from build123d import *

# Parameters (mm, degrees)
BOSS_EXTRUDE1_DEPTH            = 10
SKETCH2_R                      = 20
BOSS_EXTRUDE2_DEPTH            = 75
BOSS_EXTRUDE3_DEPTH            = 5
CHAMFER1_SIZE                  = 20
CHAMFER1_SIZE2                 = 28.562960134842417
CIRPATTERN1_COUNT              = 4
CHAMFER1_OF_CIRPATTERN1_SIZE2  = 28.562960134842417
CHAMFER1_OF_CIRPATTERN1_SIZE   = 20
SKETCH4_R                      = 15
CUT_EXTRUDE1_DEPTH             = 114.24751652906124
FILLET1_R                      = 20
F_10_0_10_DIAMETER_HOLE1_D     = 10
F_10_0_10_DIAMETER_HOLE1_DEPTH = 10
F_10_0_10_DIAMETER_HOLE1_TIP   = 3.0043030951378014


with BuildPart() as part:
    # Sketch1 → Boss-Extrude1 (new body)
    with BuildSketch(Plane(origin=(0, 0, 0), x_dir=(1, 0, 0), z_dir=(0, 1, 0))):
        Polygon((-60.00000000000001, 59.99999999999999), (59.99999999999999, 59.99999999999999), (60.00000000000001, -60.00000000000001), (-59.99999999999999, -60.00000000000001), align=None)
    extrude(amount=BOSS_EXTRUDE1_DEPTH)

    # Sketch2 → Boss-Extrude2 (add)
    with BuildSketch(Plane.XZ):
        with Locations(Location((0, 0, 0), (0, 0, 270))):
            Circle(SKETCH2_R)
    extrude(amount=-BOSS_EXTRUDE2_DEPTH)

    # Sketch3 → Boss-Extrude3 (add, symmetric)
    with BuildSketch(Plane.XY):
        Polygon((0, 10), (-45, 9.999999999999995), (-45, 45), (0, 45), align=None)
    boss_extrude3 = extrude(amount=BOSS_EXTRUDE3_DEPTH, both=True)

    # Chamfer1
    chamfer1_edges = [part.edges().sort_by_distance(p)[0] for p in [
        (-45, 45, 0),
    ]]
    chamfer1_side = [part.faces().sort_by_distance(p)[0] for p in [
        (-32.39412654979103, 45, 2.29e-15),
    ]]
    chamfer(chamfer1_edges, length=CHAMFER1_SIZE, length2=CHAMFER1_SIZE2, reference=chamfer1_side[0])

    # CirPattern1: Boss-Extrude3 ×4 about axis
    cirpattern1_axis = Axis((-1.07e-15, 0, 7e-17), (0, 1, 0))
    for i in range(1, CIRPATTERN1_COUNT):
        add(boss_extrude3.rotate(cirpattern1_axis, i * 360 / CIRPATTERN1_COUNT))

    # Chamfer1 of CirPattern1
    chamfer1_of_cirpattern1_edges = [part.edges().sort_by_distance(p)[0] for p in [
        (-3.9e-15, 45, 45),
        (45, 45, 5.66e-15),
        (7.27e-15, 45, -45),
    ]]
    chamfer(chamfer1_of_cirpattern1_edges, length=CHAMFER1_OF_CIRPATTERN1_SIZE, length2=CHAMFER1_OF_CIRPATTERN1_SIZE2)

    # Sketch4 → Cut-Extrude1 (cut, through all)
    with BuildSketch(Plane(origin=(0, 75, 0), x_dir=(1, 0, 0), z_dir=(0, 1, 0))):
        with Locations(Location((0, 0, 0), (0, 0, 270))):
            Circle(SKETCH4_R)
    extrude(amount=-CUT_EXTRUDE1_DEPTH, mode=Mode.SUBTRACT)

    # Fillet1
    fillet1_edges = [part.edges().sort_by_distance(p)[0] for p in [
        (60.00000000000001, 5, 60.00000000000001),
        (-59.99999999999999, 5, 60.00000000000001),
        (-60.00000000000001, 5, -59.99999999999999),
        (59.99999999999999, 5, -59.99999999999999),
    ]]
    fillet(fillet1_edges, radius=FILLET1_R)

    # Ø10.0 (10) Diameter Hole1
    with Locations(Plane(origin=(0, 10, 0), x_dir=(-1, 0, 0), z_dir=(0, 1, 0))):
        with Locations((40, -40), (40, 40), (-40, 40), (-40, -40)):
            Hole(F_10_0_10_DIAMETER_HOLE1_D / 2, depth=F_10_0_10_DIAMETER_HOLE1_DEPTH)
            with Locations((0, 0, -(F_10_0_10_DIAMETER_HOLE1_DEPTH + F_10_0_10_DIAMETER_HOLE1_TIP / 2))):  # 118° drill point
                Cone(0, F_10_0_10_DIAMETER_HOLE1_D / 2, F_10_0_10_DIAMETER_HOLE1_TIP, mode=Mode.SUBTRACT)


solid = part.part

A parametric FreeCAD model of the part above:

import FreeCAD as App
import Part
import Sketcher

V = App.Vector


def edges_at(feature, points):
    """Names of the edges that pass closest to the given points."""
    edges = feature.Shape.Edges
    near = lambda p: min(range(len(edges)), key=lambda i: edges[i].distToShape(Part.Vertex(*p))[0])
    return sorted({f"Edge{near(p) + 1}" for p in points})


def add_polygon(sketch, points):
    """Adds a closed chain of lines whose ends are joined by coincident constraints."""
    first, n = sketch.GeometryCount, len(points)
    for a, b in zip(points, points[1:] + points[:1]):
        sketch.addGeometry(Part.LineSegment(App.Vector(*a, 0), App.Vector(*b, 0)), False)
    for i in range(n):
        sketch.addConstraint(Sketcher.Constraint("Coincident", first + i, 2, first + (i + 1) % n, 1))

doc = App.newDocument("Part")
body = doc.addObject("PartDesign::Body", "Body")

# Sketch on XZ plane
sketch1 = doc.addObject("Sketcher::SketchObject", "Sketch")
body.addObject(sketch1)
sketch1.AttachmentSupport = (doc.XZ_Plane, [""])
sketch1.MapMode = "FlatFace"
add_polygon(sketch1, [(60, -60), (-60, -60), (-60, 60), (60, 60)])  # lines 0-3
sketch1.addConstraint(Sketcher.Constraint("Horizontal", 0))
sketch1.addConstraint(Sketcher.Constraint("Vertical", 1))
sketch1.addConstraint(Sketcher.Constraint("Horizontal", 2))
sketch1.addConstraint(Sketcher.Constraint("Vertical", 3))
sketch1.addConstraint(Sketcher.Constraint("Symmetric", 0, 2, 2, 2, -1, 1))
sketch1.addConstraint(Sketcher.Constraint("Equal", 2, 1))
sketch1.addConstraint(Sketcher.Constraint("DistanceX", 0, 2, 0, 1, 120.0))
pad1 = doc.addObject("PartDesign::Pad", "Pad")
body.addObject(pad1)
pad1.Profile = sketch1
pad1.Length = 10
pad1.Reversed = True

# Sketch on XZ plane
sketch2 = doc.addObject("Sketcher::SketchObject", "Sketch001")
body.addObject(sketch2)
sketch2.AttachmentSupport = (doc.XZ_Plane, [""])
sketch2.MapMode = "FlatFace"
sketch2.addGeometry(Part.Circle(V(0, 0, 0), V(0, 0, 1), 20), False)
sketch2.addConstraint(Sketcher.Constraint("Coincident", 0, 3, -1, 1))
sketch2.addConstraint(Sketcher.Constraint("Diameter", 0, 40.0))
pad2 = doc.addObject("PartDesign::Pad", "Pad001")
body.addObject(pad2)
pad2.Profile = sketch2
pad2.Length = 75
pad2.Reversed = True

# Sketch on XY plane
sketch3 = doc.addObject("Sketcher::SketchObject", "Sketch002")
body.addObject(sketch3)
sketch3.AttachmentSupport = (doc.XY_Plane, [""])
sketch3.MapMode = "FlatFace"
add_polygon(sketch3, [(-45, 10), (0, 10), (0, 45), (-45, 45)])  # lines 0-3
sketch3.addConstraint(Sketcher.Constraint("Horizontal", 0))
sketch3.addConstraint(Sketcher.Constraint("Vertical", 1))
sketch3.addConstraint(Sketcher.Constraint("Horizontal", 2))
sketch3.addConstraint(Sketcher.Constraint("Vertical", 3))
sketch3.addConstraint(Sketcher.Constraint("PointOnObject", 0, 2, -2))
sketch3.addConstraint(Sketcher.Constraint("DistanceX", 0, 1, 0, 2, 45.0))
sketch3.addConstraint(Sketcher.Constraint("DistanceY", 1, 1, 1, 2, 35.0))
sketch3.addConstraint(Sketcher.Constraint("DistanceY", -1, 1, 0, 2, 10.0))
pad3 = doc.addObject("PartDesign::Pad", "Pad002")
body.addObject(pad3)
pad3.Profile = sketch3
pad3.Length = 10
pad3.Midplane = True
doc.recompute()

chamfer = doc.addObject("PartDesign::Chamfer", "Chamfer")
body.addObject(chamfer)
chamfer.Base = (pad3, edges_at(pad3, [(-45, 45, 0)]))
chamfer.ChamferType = "Two distances"
chamfer.Size = 20
chamfer.Size2 = 28.56296
chamfer.FlipDirection = True
doc.recompute()

polarpattern = doc.addObject("PartDesign::PolarPattern", "PolarPattern")
body.addObject(polarpattern)
polarpattern.Originals = [pad3]
polarpattern.Axis = (doc.Y_Axis, [""])
polarpattern.Angle = 360
polarpattern.Occurrences = 4
body.Tip = polarpattern
doc.recompute()

chamfer2 = doc.addObject("PartDesign::Chamfer", "Chamfer001")
body.addObject(chamfer2)
chamfer2.Base = (polarpattern, edges_at(polarpattern, [(0, 45, 45), (45, 45, 0), (0, 45, -45)]))
chamfer2.ChamferType = "Two distances"
chamfer2.Size = 20
chamfer2.Size2 = 28.56296
chamfer2.FlipDirection = True

# Sketch on XZ plane
sketch4 = doc.addObject("Sketcher::SketchObject", "Sketch003")
body.addObject(sketch4)
sketch4.AttachmentSupport = (doc.XZ_Plane, [""])
sketch4.MapMode = "FlatFace"
sketch4.AttachmentOffset = App.Placement(V(0, 0, -75), App.Rotation())
sketch4.addGeometry(Part.Circle(V(0, 0, 0), V(0, 0, 1), 15), False)
sketch4.addConstraint(Sketcher.Constraint("Coincident", 0, 3, -1, 1))
sketch4.addConstraint(Sketcher.Constraint("Diameter", 0, 30.0))
pocket1 = doc.addObject("PartDesign::Pocket", "Pocket")
body.addObject(pocket1)
pocket1.Profile = sketch4
pocket1.Type = "ThroughAll"
pocket1.Reversed = True
doc.recompute()

fillet = doc.addObject("PartDesign::Fillet", "Fillet")
body.addObject(fillet)
fillet.Base = (pocket1, edges_at(pocket1, [
    (60, 5, 60),
    (-60, 5, 60),
    (-60, 5, -60),
    (60, 5, -60),
]))
fillet.Radius = 20

# Sketch on XZ plane
sketch5 = doc.addObject("Sketcher::SketchObject", "Sketch004")
body.addObject(sketch5)
sketch5.AttachmentSupport = (doc.XZ_Plane, [""])
sketch5.MapMode = "FlatFace"
sketch5.AttachmentOffset = App.Placement(V(0, 0, -10), App.Rotation())
sketch5.addGeometry(Part.Circle(V(-40, -40, 0), V(0, 0, 1), 5), False)
sketch5.addGeometry(Part.Circle(V(-40, 40, 0), V(0, 0, 1), 5), False)
sketch5.addGeometry(Part.Circle(V(40, 40, 0), V(0, 0, 1), 5), False)
sketch5.addGeometry(Part.Circle(V(40, -40, 0), V(0, 0, 1), 5), False)
sketch5.addConstraint(Sketcher.Constraint("Equal", 0, 1))
sketch5.addConstraint(Sketcher.Constraint("Equal", 1, 2))
sketch5.addConstraint(Sketcher.Constraint("Equal", 2, 3))
sketch5.addConstraint(Sketcher.Constraint("Symmetric", 0, 3, 2, 3, -1, 1))
sketch5.addConstraint(Sketcher.Constraint("Symmetric", 1, 3, 3, 3, -1, 1))
sketch5.addConstraint(Sketcher.Constraint("Symmetric", 1, 3, 2, 3, -2))
sketch5.addConstraint(Sketcher.Constraint("Diameter", 0, 10.0))
sketch5.addConstraint(Sketcher.Constraint("DistanceX", 0, 3, -1, 1, 40.0))
sketch5.addConstraint(Sketcher.Constraint("DistanceY", 0, 3, -1, 1, 40.0))
doc.recompute()
hole = doc.addObject("PartDesign::Hole", "Hole")
body.addObject(hole)
hole.Profile = sketch5
hole.ThreadType = "None"
hole.Diameter = 10
hole.DepthType = "Dimension"
hole.Depth = 10
hole.DrillPoint = "Angled"
hole.DrillPointAngle = 118
hole.Reversed = True

doc.recompute()
